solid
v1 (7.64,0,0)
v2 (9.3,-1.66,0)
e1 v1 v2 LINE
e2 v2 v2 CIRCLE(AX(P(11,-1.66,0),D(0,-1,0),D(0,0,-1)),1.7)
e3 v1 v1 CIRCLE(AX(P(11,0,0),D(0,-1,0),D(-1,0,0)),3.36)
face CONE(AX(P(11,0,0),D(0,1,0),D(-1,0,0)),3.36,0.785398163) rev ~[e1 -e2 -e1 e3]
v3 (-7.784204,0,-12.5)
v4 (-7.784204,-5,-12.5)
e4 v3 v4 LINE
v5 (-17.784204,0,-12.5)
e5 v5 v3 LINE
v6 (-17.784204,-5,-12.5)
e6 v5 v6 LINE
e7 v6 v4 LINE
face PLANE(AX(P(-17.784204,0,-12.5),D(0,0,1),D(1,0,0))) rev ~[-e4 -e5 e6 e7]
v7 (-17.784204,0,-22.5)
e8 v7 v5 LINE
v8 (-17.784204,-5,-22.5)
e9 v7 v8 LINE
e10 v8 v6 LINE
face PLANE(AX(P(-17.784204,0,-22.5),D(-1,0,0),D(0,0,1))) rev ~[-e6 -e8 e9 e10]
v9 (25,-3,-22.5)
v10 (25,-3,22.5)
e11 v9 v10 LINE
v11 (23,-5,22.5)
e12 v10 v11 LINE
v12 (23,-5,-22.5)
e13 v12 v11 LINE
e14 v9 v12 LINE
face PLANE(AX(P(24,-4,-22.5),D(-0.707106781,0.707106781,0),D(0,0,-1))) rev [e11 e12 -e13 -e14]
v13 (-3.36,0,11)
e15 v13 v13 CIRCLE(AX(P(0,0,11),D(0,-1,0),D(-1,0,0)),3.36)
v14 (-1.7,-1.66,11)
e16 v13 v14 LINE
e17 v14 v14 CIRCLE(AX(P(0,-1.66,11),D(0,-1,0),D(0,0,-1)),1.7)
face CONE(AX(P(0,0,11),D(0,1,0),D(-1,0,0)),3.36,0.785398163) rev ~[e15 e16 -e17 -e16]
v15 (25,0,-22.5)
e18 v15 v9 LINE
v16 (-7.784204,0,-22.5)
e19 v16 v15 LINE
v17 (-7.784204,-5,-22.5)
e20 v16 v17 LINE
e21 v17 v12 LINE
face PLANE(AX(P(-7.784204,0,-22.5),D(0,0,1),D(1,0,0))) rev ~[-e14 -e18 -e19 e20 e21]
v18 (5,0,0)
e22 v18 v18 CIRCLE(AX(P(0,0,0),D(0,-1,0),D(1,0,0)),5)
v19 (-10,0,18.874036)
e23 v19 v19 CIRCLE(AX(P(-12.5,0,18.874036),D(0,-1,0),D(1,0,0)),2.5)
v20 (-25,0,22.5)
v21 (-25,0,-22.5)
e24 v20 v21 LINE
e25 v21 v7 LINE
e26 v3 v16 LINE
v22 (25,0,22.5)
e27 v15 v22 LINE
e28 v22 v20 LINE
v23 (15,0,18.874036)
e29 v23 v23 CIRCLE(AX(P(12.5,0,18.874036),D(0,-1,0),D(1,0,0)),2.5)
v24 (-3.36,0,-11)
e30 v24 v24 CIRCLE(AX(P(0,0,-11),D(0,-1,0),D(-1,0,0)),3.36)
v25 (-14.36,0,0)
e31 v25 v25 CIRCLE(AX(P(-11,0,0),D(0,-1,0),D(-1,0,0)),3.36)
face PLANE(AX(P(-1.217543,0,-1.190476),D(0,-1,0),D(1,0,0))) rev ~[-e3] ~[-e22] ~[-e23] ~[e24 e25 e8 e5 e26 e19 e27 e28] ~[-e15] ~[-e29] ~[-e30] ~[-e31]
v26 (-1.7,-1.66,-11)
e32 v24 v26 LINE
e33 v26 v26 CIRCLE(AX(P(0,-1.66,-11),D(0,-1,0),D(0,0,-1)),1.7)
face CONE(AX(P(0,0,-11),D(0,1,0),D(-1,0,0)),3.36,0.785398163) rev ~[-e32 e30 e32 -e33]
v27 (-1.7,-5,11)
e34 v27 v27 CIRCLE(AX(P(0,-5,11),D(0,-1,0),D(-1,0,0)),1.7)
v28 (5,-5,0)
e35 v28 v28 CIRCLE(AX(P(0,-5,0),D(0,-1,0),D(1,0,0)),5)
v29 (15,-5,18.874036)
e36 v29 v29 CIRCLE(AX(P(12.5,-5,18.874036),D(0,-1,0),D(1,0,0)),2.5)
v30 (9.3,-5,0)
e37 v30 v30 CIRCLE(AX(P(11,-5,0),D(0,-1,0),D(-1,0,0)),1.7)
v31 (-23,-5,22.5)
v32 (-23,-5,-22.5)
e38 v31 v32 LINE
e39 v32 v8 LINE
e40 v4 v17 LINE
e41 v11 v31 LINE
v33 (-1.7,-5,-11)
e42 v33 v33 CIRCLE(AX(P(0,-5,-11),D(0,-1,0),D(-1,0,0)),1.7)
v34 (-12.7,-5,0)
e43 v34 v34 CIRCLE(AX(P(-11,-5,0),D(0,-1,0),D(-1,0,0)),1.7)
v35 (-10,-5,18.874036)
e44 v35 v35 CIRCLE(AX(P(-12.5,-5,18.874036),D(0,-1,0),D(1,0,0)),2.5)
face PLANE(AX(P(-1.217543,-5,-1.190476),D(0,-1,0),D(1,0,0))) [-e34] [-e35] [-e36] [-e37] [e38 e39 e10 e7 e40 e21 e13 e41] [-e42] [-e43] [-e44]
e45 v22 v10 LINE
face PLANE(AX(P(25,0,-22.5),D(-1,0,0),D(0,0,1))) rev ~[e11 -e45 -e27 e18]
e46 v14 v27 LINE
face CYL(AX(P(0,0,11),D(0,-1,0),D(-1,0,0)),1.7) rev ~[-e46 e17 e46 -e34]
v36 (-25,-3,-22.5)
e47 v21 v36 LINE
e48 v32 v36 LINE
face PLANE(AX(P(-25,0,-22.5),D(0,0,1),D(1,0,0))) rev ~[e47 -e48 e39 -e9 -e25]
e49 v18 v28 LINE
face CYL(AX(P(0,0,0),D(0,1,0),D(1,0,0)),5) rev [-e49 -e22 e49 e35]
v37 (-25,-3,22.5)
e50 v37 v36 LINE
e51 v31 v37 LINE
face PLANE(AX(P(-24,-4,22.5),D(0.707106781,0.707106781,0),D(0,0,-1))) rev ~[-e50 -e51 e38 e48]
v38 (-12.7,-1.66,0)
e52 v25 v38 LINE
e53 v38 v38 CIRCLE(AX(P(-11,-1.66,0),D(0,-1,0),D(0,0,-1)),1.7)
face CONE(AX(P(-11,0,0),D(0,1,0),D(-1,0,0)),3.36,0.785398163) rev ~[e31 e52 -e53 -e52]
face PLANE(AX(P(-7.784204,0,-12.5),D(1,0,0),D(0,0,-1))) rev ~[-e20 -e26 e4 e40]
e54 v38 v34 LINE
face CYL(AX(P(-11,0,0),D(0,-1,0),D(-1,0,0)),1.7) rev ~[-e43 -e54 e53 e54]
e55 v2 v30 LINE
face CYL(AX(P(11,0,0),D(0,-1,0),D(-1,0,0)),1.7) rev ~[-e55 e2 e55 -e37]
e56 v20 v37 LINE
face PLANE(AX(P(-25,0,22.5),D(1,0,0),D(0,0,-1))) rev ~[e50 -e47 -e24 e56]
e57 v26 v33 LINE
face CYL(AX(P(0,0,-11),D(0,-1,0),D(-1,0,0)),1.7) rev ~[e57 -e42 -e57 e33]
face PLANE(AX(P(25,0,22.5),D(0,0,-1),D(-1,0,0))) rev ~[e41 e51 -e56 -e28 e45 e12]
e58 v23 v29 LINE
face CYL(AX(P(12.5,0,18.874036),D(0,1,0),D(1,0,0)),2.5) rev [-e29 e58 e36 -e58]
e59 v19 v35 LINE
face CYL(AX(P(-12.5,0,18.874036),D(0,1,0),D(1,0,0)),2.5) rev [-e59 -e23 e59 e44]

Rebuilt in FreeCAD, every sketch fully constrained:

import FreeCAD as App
import Part
import Sketcher


def edges_at(feature, points):
    """Names of the edges that pass closest to the given points."""
    edges = feature.Shape.Edges
    near = lambda p: min(range(len(edges)), key=lambda i: edges[i].distToShape(Part.Vertex(*p))[0])
    return sorted({f"Edge{near(p) + 1}" for p in points})


def add_polygon(sketch, points):
    """Adds a closed chain of lines whose ends are joined by coincident constraints."""
    first, n = sketch.GeometryCount, len(points)
    for a, b in zip(points, points[1:] + points[:1]):
        sketch.addGeometry(Part.LineSegment(App.Vector(*a, 0), App.Vector(*b, 0)), False)
    for i in range(n):
        sketch.addConstraint(Sketcher.Constraint("Coincident", first + i, 2, first + (i + 1) % n, 1))

doc = App.newDocument("Part")
body = doc.addObject("PartDesign::Body", "Body")

sketch1 = body.newObject("Sketcher::SketchObject", "Sketch")
sketch1.AttachmentSupport = (doc.getObject("XZ_Plane"), [""])
sketch1.MapMode = "FlatFace"
add_polygon(sketch1, [(25, -22.5), (25, 22.5), (-25, 22.5), (-25, -22.5), (-17.784204, -22.5), (-17.784204, -12.5), (-7.784204, -12.5), (-7.784204, -22.5)])
sketch1.addGeometry(Part.Circle(App.Vector(-11, 0, 0), App.Vector(0, 0, 1), 1.5), False)
sketch1.addGeometry(Part.Circle(App.Vector(0, -11, 0), App.Vector(0, 0, 1), 1.5), False)
sketch1.addGeometry(Part.Circle(App.Vector(0, 0, 0), App.Vector(0, 0, 1), 5), False)
sketch1.addGeometry(Part.Circle(App.Vector(11, 0, 0), App.Vector(0, 0, 1), 1.5), False)
sketch1.addGeometry(Part.Circle(App.Vector(-12.5, 18.874036, 0), App.Vector(0, 0, 1), 2.5), False)
sketch1.addGeometry(Part.Circle(App.Vector(0, 11, 0), App.Vector(0, 0, 1), 1.5), False)
sketch1.addGeometry(Part.Circle(App.Vector(12.5, 18.874036, 0), App.Vector(0, 0, 1), 2.5), False)
sketch1.addConstraint([
    Sketcher.Constraint("Vertical", 0),
    Sketcher.Constraint("Horizontal", 1),
    Sketcher.Constraint("Vertical", 2),
    Sketcher.Constraint("Horizontal", 3),
    Sketcher.Constraint("Vertical", 4),
    Sketcher.Constraint("Horizontal", 5),
    Sketcher.Constraint("Vertical", 6),
    Sketcher.Constraint("Horizontal", 7),
    Sketcher.Constraint("Coincident", 10, 3, -1, 1),
    Sketcher.Constraint("Equal", 8, 9),
    Sketcher.Constraint("Equal", 9, 11),
    Sketcher.Constraint("Equal", 11, 13),
    Sketcher.Constraint("Equal", 12, 14),
    Sketcher.Constraint("Symmetric", 8, 3, 11, 3, -1, 1),
    Sketcher.Constraint("Symmetric", 9, 3, 13, 3, -1, 1),
    Sketcher.Constraint("Symmetric", 0, 2, 2, 2, -1, 1),
    Sketcher.Constraint("Symmetric", 12, 3, 14, 3, -2),
    Sketcher.Constraint("PointOnObject", 8, 3, -1),
    Sketcher.Constraint("PointOnObject", 9, 3, -2),
    Sketcher.Constraint("Horizontal", 3, 2, 6, 2),
    Sketcher.Constraint("Equal", 5, 4),
    Sketcher.Constraint("Diameter", 8, 3.0),
    Sketcher.Constraint("Diameter", 10, 10.0),
    Sketcher.Constraint("Diameter", 12, 5.0),
    Sketcher.Constraint("DistanceX", 1, 2, 1, 1, 50.0),
    Sketcher.Constraint("DistanceX", 5, 1, 5, 2, 10.0),
    Sketcher.Constraint("DistanceY", 0, 1, 0, 2, 45.0),
    Sketcher.Constraint("DistanceX", 8, 3, -1, 1, 11.0),
    Sketcher.Constraint("DistanceY", 9, 3, -1, 1, 11.0),
    Sketcher.Constraint("DistanceX", 12, 3, 14, 3, 25.0),
    Sketcher.Constraint("DistanceX", 3, 1, 3, 2, 7.215796),
    Sketcher.Constraint("DistanceY", -1, 1, 12, 3, 18.874036),
])
pad1 = body.newObject("PartDesign::Pad", "Pad")
pad1.Profile = sketch1
pad1.Length = 5

sketch2 = body.newObject("Sketcher::SketchObject", "Sketch001")
sketch2.AttachmentSupport = (doc.getObject("XZ_Plane"), [""])
sketch2.MapMode = "FlatFace"
sketch2.addGeometry([
    Part.Circle(App.Vector(-11, 0, 0), App.Vector(0, 0, 1), 1.7),
    Part.Circle(App.Vector(11, 0, 0), App.Vector(0, 0, 1), 1.7),
    Part.Circle(App.Vector(0, 11, 0), App.Vector(0, 0, 1), 1.7),
    Part.Circle(App.Vector(0, -11, 0), App.Vector(0, 0, 1), 1.7),
], False)
sketch2.addConstraint([
    Sketcher.Constraint("Equal", 0, 1),
    Sketcher.Constraint("Equal", 1, 2),
    Sketcher.Constraint("Equal", 2, 3),
    Sketcher.Constraint("Symmetric", 0, 3, 1, 3, -1, 1),
    Sketcher.Constraint("Symmetric", 2, 3, 3, 3, -1, 1),
    Sketcher.Constraint("PointOnObject", 0, 3, -1),
    Sketcher.Constraint("PointOnObject", 2, 3, -2),
    Sketcher.Constraint("Diameter", 0, 3.4),
    Sketcher.Constraint("DistanceX", 0, 3, -1, 1, 11.0),
    Sketcher.Constraint("DistanceY", -1, 1, 2, 3, 11.0),
])
doc.recompute()
hole = body.newObject("PartDesign::Hole", "Hole")
hole.Profile = sketch2
hole.ThreadType = "None"
hole.Diameter = 3.4
hole.DepthType = "ThroughAll"
hole.HoleCutType = "Countersink"
hole.HoleCutDiameter = 6.72
hole.HoleCutCountersinkAngle = 90
hole.Reversed = True
doc.recompute()

chamfer = body.newObject("PartDesign::Chamfer", "Chamfer")
chamfer.Base = (hole, edges_at(hole, [(25, -5, 0), (-25, -5, 0)]))
chamfer.Size = 2

doc.recompute()
